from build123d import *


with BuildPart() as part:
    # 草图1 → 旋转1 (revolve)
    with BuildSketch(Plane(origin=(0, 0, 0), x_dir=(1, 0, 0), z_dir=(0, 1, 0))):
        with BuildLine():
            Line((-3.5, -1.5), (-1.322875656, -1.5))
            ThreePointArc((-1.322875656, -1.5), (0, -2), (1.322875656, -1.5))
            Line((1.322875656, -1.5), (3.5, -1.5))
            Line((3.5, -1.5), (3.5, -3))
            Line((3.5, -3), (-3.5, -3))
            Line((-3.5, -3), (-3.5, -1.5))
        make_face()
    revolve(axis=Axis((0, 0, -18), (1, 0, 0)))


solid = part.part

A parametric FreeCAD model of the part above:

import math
import FreeCAD as App
import Part
import Sketcher

V = App.Vector
Q = App.Units.Quantity

doc = App.newDocument("Part")
body = doc.addObject("PartDesign::Body", "Body")

# Sketch on XZ plane
sketch1 = body.newObject("Sketcher::SketchObject", "Sketch")
sketch1.AttachmentSupport = (doc.getObject("XZ_Plane"), [""])
sketch1.MapMode = "FlatFace"
sketch1.addGeometry(Part.LineSegment(V(-1.3, 1.5, 0), V(-3.5, 1.5, 0)), False)
sketch1.addGeometry(Part.LineSegment(V(-3.5, 1.5, 0), V(-3.5, 3, 0)), False)
sketch1.addGeometry(Part.LineSegment(V(-3.5, 3, 0), V(3.5, 3, 0)), False)
sketch1.addGeometry(Part.LineSegment(V(3.5, 3, 0), V(3.5, 1.5, 0)), False)
sketch1.addGeometry(Part.LineSegment(V(3.5, 1.5, 0), V(1.3, 1.5, 0)), False)
sketch1.addGeometry(Part.ArcOfCircle(Part.Circle(V(0, 0, 0), V(0, 0, 1), 2), math.radians(49), math.radians(131)), False)
sketch1.addGeometry(Part.LineSegment(V(-3.5, -18, 0), V(3.5, -18, 0)), True)  # axis
sketch1.addConstraint(Sketcher.Constraint("Coincident", 0, 2, 1, 1))
sketch1.addConstraint(Sketcher.Constraint("Coincident", 1, 2, 2, 1))
sketch1.addConstraint(Sketcher.Constraint("Coincident", 2, 2, 3, 1))
sketch1.addConstraint(Sketcher.Constraint("Coincident", 3, 2, 4, 1))
sketch1.addConstraint(Sketcher.Constraint("Coincident", 4, 2, 5, 1))
sketch1.addConstraint(Sketcher.Constraint("Coincident", 5, 2, 0, 1))
sketch1.addConstraint(Sketcher.Constraint("Horizontal", 0))
sketch1.addConstraint(Sketcher.Constraint("Vertical", 1))
sketch1.addConstraint(Sketcher.Constraint("Horizontal", 2))
sketch1.addConstraint(Sketcher.Constraint("Vertical", 3))
sketch1.addConstraint(Sketcher.Constraint("Horizontal", 4))
sketch1.addConstraint(Sketcher.Constraint("Horizontal", 6))
sketch1.addConstraint(Sketcher.Constraint("Coincident", 5, 3, -1, 1))
sketch1.addConstraint(Sketcher.Constraint("Symmetric", 0, 2, 3, 2, -2))
sketch1.addConstraint(Sketcher.Constraint("Vertical", 1, 2, 6, 1))
sketch1.addConstraint(Sketcher.Constraint("Vertical", 3, 2, 6, 2))
sketch1.addConstraint(Sketcher.Constraint("Radius", 5, Q("2 mm")))
sketch1.addConstraint(Sketcher.Constraint("DistanceX", 2, 1, 2, 2, Q("7 mm")))
sketch1.addConstraint(Sketcher.Constraint("DistanceY", 1, 1, 1, 2, Q("1.5 mm")))
sketch1.addConstraint(Sketcher.Constraint("DistanceY", -1, 1, 1, 2, Q("3 mm")))
sketch1.addConstraint(Sketcher.Constraint("DistanceY", 6, 1, -1, 1, Q("18 mm")))
revolution = body.newObject("PartDesign::Revolution", "Revolution")
revolution.Profile = sketch1
revolution.ReferenceAxis = (sketch1, ["Axis0"])
revolution.Angle = 360

doc.recompute()
